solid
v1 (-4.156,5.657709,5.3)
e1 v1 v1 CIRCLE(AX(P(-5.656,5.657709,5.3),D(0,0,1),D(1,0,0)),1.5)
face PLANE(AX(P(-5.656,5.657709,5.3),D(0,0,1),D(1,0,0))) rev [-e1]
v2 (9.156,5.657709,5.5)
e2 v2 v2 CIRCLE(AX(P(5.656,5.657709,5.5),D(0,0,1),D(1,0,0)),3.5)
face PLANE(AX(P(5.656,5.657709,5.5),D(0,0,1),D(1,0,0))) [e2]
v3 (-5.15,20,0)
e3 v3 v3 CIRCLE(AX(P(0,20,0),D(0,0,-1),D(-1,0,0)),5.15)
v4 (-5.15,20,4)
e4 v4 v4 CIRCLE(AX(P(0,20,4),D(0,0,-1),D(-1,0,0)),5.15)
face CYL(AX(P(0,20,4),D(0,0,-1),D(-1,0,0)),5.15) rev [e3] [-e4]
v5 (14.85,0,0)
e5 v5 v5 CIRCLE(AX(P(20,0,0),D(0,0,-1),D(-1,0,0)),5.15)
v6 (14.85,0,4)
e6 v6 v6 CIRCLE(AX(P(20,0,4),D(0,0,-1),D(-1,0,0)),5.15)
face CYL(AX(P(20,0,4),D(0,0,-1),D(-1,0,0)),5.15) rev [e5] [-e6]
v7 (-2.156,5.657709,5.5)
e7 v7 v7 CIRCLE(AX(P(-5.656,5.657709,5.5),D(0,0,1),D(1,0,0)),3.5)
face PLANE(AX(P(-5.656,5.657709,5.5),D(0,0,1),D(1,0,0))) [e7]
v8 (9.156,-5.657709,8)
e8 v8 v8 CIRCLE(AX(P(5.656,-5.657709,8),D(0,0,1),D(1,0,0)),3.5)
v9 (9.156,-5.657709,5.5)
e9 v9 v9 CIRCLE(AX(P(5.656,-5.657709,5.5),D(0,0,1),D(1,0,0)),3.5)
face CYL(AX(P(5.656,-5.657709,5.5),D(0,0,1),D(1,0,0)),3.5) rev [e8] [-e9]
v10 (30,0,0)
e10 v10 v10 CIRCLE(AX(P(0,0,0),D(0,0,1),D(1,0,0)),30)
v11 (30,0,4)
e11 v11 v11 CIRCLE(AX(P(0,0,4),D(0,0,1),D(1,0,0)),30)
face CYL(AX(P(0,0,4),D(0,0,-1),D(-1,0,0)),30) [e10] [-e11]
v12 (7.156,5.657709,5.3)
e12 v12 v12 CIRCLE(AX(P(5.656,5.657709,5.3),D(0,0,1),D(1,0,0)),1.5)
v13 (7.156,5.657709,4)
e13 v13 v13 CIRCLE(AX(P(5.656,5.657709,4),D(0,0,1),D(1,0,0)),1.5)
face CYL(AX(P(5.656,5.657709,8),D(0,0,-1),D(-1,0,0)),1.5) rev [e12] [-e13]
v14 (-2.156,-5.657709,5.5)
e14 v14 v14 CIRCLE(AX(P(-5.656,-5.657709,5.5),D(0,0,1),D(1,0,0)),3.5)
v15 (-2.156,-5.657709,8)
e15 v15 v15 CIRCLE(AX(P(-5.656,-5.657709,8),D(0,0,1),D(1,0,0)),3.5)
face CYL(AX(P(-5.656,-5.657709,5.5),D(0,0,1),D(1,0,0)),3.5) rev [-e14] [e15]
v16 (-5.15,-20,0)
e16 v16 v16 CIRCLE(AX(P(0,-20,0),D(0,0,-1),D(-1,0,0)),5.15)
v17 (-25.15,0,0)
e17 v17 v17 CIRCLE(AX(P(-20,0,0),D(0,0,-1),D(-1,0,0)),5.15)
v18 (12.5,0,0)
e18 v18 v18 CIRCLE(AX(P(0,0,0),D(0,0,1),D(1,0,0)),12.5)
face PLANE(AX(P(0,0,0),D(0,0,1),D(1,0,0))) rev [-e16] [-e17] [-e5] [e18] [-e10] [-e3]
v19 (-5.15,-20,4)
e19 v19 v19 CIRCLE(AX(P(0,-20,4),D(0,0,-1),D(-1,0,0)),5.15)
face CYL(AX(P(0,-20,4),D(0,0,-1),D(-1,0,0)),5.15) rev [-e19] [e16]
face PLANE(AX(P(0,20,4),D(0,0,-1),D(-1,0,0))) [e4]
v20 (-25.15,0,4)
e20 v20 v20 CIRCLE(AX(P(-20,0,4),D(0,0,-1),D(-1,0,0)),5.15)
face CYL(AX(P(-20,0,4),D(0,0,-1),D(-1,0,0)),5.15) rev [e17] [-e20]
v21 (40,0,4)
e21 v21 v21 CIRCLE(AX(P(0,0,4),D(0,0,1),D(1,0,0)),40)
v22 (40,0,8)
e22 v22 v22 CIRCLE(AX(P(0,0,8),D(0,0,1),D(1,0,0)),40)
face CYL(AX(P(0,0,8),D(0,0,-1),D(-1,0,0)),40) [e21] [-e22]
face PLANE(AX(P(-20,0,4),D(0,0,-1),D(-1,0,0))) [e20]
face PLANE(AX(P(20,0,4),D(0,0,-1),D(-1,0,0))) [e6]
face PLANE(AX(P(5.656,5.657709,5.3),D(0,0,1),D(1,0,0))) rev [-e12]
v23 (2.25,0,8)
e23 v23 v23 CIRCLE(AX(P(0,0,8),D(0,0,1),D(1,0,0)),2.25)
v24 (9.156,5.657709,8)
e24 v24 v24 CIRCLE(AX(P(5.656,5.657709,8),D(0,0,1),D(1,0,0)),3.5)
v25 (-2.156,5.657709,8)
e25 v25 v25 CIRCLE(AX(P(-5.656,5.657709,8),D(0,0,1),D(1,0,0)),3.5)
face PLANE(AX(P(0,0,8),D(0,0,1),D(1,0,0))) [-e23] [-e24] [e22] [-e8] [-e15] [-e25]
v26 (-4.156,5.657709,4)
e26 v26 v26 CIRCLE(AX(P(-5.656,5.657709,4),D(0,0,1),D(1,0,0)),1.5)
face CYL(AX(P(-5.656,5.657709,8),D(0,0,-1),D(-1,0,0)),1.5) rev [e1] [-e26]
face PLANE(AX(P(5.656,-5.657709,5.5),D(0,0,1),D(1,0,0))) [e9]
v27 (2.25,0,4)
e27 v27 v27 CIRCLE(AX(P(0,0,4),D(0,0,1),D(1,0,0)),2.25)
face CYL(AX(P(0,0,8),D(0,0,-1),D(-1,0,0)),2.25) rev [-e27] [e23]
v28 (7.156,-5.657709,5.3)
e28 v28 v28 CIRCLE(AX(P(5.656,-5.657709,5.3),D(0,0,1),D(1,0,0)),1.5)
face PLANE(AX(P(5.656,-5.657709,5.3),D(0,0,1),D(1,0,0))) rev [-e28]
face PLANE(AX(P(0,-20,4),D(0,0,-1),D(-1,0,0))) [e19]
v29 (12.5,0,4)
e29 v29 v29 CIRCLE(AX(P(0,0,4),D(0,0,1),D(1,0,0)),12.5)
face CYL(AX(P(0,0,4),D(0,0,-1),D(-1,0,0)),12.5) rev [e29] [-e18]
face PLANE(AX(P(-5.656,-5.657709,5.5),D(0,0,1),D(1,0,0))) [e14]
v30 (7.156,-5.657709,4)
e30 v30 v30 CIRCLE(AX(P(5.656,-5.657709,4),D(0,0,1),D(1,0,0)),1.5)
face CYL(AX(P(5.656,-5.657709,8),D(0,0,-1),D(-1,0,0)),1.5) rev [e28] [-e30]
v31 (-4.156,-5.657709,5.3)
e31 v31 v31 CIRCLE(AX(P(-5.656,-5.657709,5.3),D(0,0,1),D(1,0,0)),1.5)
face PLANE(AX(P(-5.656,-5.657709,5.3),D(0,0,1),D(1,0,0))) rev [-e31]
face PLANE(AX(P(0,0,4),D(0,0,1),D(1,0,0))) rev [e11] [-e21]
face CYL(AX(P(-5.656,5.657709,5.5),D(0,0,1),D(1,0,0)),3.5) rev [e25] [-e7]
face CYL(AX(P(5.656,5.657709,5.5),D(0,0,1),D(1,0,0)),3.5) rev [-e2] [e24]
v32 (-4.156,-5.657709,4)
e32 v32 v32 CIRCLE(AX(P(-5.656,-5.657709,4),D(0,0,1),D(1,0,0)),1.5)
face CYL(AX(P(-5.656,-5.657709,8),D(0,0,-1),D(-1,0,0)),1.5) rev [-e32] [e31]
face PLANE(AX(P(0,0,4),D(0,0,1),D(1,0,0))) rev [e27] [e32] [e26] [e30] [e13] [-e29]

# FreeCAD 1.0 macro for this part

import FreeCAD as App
import Part
import Sketcher

V = App.Vector
Q = App.Units.Quantity

doc = App.newDocument("Part")
body = doc.addObject("PartDesign::Body", "Body")

# Sketch on XY plane
sketch1 = body.newObject("Sketcher::SketchObject", "Sketch")
sketch1.AttachmentSupport = (doc.getObject("XY_Plane"), [""])
sketch1.MapMode = "FlatFace"
sketch1.addGeometry(Part.Circle(V(0, 0, 0), V(0, 0, 1), 30), False)
sketch1.addGeometry(Part.Circle(V(0, 0, 0), V(0, 0, 1), 12.5), False)
sketch1.addConstraint(Sketcher.Constraint("Coincident", 0, 3, -1, 1))
sketch1.addConstraint(Sketcher.Constraint("Coincident", 1, 3, -1, 1))
sketch1.addConstraint(Sketcher.Constraint("Diameter", 0, Q("60 mm")))
sketch1.addConstraint(Sketcher.Constraint("Diameter", 1, Q("25 mm")))
pad1 = body.newObject("PartDesign::Pad", "Pad")
pad1.Profile = sketch1
pad1.Length = 4

# Sketch on XY plane
sketch2 = body.newObject("Sketcher::SketchObject", "Sketch001")
sketch2.AttachmentSupport = (doc.getObject("XY_Plane"), [""])
sketch2.MapMode = "FlatFace"
sketch2.AttachmentOffset = App.Placement(V(0, 0, 4), App.Rotation())
sketch2.addGeometry(Part.Circle(V(0, 0, 0), V(0, 0, 1), 40), False)
sketch2.addGeometry(Part.Circle(V(-5.656, -5.657709, 0), V(0, 0, 1), 1.5), False)
sketch2.addGeometry(Part.Circle(V(5.656, -5.657709, 0), V(0, 0, 1), 1.5), False)
sketch2.addGeometry(Part.Circle(V(-5.656, 5.657709, 0), V(0, 0, 1), 1.5), False)
sketch2.addGeometry(Part.Circle(V(0, 0, 0), V(0, 0, 1), 2.25), False)
sketch2.addGeometry(Part.Circle(V(5.656, 5.657709, 0), V(0, 0, 1), 1.5), False)
sketch2.addConstraint(Sketcher.Constraint("Coincident", 0, 3, -1, 1))
sketch2.addConstraint(Sketcher.Constraint("Coincident", 4, 3, -1, 1))
sketch2.addConstraint(Sketcher.Constraint("Equal", 1, 2))
sketch2.addConstraint(Sketcher.Constraint("Equal", 2, 3))
sketch2.addConstraint(Sketcher.Constraint("Equal", 3, 5))
sketch2.addConstraint(Sketcher.Constraint("Symmetric", 2, 3, 3, 3, -1, 1))
sketch2.addConstraint(Sketcher.Constraint("Symmetric", 1, 3, 5, 3, -1, 1))
sketch2.addConstraint(Sketcher.Constraint("Symmetric", 1, 3, 2, 3, -2))
sketch2.addConstraint(Sketcher.Constraint("Diameter", 0, Q("80 mm")))
sketch2.addConstraint(Sketcher.Constraint("Diameter", 1, Q("3 mm")))
sketch2.addConstraint(Sketcher.Constraint("Diameter", 4, Q("4.5 mm")))
sketch2.addConstraint(Sketcher.Constraint("DistanceX", 1, 3, -1, 1, Q("5.656 mm")))
sketch2.addConstraint(Sketcher.Constraint("DistanceY", 1, 3, -1, 1, Q("5.657709 mm")))
pad2 = body.newObject("PartDesign::Pad", "Pad001")
pad2.Profile = sketch2
pad2.Length = 4

# Sketch on XY plane
sketch3 = body.newObject("Sketcher::SketchObject", "Sketch002")
sketch3.AttachmentSupport = (doc.getObject("XY_Plane"), [""])
sketch3.MapMode = "FlatFace"
sketch3.AttachmentOffset = App.Placement(V(0, 0, 8), App.Rotation())
sketch3.addGeometry(Part.Circle(V(-5.656, 5.657709, 0), V(0, 0, 1), 3.5), False)
sketch3.addGeometry(Part.Circle(V(5.656, 5.657709, 0), V(0, 0, 1), 3.5), False)
sketch3.addGeometry(Part.Circle(V(5.656, -5.657709, 0), V(0, 0, 1), 3.5), False)
sketch3.addGeometry(Part.Circle(V(-5.656, -5.657709, 0), V(0, 0, 1), 3.5), False)
sketch3.addConstraint(Sketcher.Constraint("Equal", 0, 1))
sketch3.addConstraint(Sketcher.Constraint("Equal", 1, 2))
sketch3.addConstraint(Sketcher.Constraint("Equal", 2, 3))
sketch3.addConstraint(Sketcher.Constraint("Symmetric", 0, 3, 2, 3, -1, 1))
sketch3.addConstraint(Sketcher.Constraint("Symmetric", 1, 3, 3, 3, -1, 1))
sketch3.addConstraint(Sketcher.Constraint("Symmetric", 0, 3, 1, 3, -2))
sketch3.addConstraint(Sketcher.Constraint("Diameter", 0, Q("7 mm")))
sketch3.addConstraint(Sketcher.Constraint("DistanceX", 0, 3, -1, 1, Q("5.656 mm")))
sketch3.addConstraint(Sketcher.Constraint("DistanceY", -1, 1, 0, 3, Q("5.657709 mm")))
pocket1 = body.newObject("PartDesign::Pocket", "Pocket")
pocket1.Profile = sketch3
pocket1.Length = 2.5

# Sketch on XY plane
sketch4 = body.newObject("Sketcher::SketchObject", "Sketch003")
sketch4.AttachmentSupport = (doc.getObject("XY_Plane"), [""])
sketch4.MapMode = "FlatFace"
sketch4.addGeometry(Part.Circle(V(20, 0, 0), V(0, 0, 1), 5.15), False)
sketch4.addGeometry(Part.Circle(V(0, -20, 0), V(0, 0, 1), 5.15), False)
sketch4.addGeometry(Part.Circle(V(-20, 0, 0), V(0, 0, 1), 5.15), False)
sketch4.addGeometry(Part.Circle(V(0, 20, 0), V(0, 0, 1), 5.15), False)
sketch4.addConstraint(Sketcher.Constraint("Equal", 0, 1))
sketch4.addConstraint(Sketcher.Constraint("Equal", 1, 2))
sketch4.addConstraint(Sketcher.Constraint("Equal", 2, 3))
sketch4.addConstraint(Sketcher.Constraint("Symmetric", 0, 3, 2, 3, -1, 1))
sketch4.addConstraint(Sketcher.Constraint("Symmetric", 1, 3, 3, 3, -1, 1))
sketch4.addConstraint(Sketcher.Constraint("PointOnObject", 0, 3, -1))
sketch4.addConstraint(Sketcher.Constraint("PointOnObject", 1, 3, -2))
sketch4.addConstraint(Sketcher.Constraint("Diameter", 0, Q("10.3 mm")))
sketch4.addConstraint(Sketcher.Constraint("DistanceX", -1, 1, 0, 3, Q("20 mm")))
sketch4.addConstraint(Sketcher.Constraint("DistanceY", 1, 3, -1, 1, Q("20 mm")))
pocket2 = body.newObject("PartDesign::Pocket", "Pocket001")
pocket2.Profile = sketch4
pocket2.Length = 4
pocket2.Reversed = True

# Sketch on XY plane
sketch5 = body.newObject("Sketcher::SketchObject", "Sketch004")
sketch5.AttachmentSupport = (doc.getObject("XY_Plane"), [""])
sketch5.MapMode = "FlatFace"
sketch5.AttachmentOffset = App.Placement(V(0, 0, 5.5), App.Rotation())
sketch5.addGeometry(Part.Circle(V(-5.656, 5.657709, 0), V(0, 0, 1), 3.5), False)
sketch5.addGeometry(Part.Circle(V(5.656, 5.657709, 0), V(0, 0, 1), 3.5), False)
sketch5.addGeometry(Part.Circle(V(-5.656, -5.657709, 0), V(0, 0, 1), 3.5), False)
sketch5.addGeometry(Part.Circle(V(5.656, -5.657709, 0), V(0, 0, 1), 3.5), False)
sketch5.addConstraint(Sketcher.Constraint("Equal", 0, 1))
sketch5.addConstraint(Sketcher.Constraint("Equal", 1, 2))
sketch5.addConstraint(Sketcher.Constraint("Equal", 2, 3))
sketch5.addConstraint(Sketcher.Constraint("Symmetric", 1, 3, 2, 3, -1, 1))
sketch5.addConstraint(Sketcher.Constraint("Symmetric", 0, 3, 3, 3, -1, 1))
sketch5.addConstraint(Sketcher.Constraint("Symmetric", 0, 3, 1, 3, -2))
sketch5.addConstraint(Sketcher.Constraint("Diameter", 0, Q("7 mm")))
sketch5.addConstraint(Sketcher.Constraint("DistanceX", 0, 3, -1, 1, Q("5.656 mm")))
sketch5.addConstraint(Sketcher.Constraint("DistanceY", -1, 1, 0, 3, Q("5.657709 mm")))
pad3 = body.newObject("PartDesign::Pad", "Pad002")
pad3.Profile = sketch5
pad3.Length = 0.2
pad3.Reversed = True

doc.recompute()
